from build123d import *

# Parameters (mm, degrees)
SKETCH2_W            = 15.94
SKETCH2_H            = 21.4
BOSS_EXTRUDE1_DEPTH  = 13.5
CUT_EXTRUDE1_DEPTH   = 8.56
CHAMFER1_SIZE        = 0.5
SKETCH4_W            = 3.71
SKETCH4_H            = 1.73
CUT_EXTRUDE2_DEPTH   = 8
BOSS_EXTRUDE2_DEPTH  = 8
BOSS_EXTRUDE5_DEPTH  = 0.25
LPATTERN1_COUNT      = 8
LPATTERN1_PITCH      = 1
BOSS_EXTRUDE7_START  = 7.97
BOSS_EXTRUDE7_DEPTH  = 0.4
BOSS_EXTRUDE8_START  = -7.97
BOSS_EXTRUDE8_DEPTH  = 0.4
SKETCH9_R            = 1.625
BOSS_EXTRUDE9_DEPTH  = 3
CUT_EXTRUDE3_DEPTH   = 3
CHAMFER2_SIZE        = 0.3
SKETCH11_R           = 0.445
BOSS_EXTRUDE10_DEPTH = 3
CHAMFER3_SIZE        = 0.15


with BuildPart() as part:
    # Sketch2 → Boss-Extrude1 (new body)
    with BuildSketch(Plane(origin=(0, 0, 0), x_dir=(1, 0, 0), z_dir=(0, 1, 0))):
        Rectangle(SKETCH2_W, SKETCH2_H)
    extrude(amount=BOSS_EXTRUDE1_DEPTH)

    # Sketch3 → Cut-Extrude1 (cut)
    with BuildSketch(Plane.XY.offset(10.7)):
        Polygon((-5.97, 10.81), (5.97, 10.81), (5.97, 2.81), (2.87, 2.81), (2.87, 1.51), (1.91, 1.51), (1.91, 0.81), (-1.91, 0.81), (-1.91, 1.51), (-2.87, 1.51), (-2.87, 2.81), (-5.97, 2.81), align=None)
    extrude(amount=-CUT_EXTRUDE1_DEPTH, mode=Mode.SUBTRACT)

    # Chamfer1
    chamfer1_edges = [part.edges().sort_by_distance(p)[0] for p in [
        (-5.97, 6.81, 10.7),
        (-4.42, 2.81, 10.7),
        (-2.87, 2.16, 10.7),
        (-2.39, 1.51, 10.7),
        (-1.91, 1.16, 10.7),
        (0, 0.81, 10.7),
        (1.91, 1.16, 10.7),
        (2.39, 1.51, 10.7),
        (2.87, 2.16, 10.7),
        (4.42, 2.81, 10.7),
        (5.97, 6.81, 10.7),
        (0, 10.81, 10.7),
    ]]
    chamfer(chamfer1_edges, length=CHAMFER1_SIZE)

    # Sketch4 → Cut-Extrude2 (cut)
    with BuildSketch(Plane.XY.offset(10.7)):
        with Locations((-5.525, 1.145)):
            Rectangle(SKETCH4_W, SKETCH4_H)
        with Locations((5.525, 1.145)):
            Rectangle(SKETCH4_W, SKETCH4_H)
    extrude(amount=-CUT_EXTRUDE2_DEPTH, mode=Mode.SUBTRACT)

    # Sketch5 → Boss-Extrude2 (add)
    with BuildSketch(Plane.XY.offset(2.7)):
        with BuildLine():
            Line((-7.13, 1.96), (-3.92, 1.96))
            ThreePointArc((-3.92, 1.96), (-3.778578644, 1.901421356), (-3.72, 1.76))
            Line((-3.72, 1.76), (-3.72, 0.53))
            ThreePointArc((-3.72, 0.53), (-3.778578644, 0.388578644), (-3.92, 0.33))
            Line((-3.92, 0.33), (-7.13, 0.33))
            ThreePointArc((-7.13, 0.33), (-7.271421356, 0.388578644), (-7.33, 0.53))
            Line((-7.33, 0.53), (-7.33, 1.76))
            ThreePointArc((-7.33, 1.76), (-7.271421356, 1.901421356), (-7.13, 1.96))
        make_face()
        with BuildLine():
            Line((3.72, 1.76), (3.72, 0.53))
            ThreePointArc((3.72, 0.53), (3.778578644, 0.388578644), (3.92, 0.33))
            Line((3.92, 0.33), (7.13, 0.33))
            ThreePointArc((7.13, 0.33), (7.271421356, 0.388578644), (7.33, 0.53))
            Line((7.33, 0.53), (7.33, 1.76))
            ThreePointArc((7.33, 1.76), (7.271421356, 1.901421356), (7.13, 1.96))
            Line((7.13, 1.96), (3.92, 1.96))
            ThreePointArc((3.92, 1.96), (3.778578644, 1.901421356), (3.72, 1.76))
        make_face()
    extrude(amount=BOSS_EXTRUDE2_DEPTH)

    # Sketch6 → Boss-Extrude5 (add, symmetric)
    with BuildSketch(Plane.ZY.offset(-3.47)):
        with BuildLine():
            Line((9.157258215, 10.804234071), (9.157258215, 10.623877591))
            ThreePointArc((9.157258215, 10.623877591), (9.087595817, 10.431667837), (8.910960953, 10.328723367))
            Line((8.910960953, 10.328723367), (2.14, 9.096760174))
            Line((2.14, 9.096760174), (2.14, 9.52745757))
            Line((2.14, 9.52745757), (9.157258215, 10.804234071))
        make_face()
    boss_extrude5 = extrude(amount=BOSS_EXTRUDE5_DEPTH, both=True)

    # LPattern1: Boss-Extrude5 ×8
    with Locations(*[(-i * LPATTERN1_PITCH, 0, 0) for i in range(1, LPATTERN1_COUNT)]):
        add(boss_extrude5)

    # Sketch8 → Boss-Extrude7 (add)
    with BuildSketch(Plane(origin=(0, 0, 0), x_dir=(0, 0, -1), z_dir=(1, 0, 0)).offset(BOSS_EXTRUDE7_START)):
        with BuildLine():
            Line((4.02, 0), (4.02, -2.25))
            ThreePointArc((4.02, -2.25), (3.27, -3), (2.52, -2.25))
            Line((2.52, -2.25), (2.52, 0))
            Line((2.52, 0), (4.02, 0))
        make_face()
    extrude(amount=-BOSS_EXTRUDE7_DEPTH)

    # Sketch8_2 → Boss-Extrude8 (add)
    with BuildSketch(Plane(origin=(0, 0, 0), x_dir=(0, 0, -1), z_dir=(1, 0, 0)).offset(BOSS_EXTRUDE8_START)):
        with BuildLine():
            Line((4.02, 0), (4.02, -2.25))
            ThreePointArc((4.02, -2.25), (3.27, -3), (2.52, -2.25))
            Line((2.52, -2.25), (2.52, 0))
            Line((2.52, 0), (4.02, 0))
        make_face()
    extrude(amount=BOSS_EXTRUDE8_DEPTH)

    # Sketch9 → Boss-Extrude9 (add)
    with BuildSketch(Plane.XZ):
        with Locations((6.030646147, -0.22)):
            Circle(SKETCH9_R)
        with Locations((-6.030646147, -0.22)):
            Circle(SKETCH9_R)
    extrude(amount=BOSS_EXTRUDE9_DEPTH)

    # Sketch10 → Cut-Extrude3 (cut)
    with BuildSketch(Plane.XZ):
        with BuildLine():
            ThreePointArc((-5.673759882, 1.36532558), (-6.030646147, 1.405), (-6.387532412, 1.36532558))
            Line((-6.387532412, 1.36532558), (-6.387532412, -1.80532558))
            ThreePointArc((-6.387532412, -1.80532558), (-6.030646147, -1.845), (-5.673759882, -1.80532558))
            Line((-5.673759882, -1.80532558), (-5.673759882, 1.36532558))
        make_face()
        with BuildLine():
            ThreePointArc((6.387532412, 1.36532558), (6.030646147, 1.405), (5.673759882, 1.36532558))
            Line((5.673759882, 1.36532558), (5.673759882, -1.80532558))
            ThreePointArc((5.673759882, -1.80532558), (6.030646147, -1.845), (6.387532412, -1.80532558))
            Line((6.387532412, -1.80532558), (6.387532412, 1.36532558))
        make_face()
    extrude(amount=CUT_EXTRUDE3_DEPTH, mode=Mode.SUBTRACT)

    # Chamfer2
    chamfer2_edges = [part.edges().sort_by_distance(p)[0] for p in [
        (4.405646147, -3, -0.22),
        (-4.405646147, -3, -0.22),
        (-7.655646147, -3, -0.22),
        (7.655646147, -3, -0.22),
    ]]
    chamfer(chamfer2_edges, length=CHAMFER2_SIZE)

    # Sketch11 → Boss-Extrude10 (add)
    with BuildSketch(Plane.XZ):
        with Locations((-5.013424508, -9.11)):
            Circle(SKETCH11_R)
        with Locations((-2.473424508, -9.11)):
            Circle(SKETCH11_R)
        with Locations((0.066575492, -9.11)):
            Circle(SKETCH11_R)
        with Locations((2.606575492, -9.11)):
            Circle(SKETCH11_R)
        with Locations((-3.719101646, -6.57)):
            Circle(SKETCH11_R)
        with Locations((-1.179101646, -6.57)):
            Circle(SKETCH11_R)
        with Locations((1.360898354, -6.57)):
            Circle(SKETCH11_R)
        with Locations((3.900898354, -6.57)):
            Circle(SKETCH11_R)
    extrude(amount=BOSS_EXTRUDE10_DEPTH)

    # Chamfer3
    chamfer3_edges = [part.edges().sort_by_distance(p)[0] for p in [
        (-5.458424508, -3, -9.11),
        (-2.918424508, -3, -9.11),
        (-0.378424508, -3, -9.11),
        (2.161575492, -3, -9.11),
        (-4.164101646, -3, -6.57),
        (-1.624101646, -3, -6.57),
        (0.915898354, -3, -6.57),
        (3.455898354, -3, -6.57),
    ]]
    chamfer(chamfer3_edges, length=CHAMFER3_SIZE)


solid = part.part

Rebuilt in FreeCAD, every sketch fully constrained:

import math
import FreeCAD as App
import Part
import Sketcher
from FreeCAD import Vector
Q = App.Units.Quantity


def edges_at(feature, points):
    """Names of the edges that pass closest to the given points."""
    edges = feature.Shape.Edges
    near = lambda p: min(range(len(edges)), key=lambda i: edges[i].distToShape(Part.Vertex(*p))[0])
    return sorted({f"Edge{near(p) + 1}" for p in points})


def add_polygon(sketch, points):
    """Adds a closed chain of lines whose ends are joined by coincident constraints."""
    first, n = sketch.GeometryCount, len(points)
    for a, b in zip(points, points[1:] + points[:1]):
        sketch.addGeometry(Part.LineSegment(App.Vector(*a, 0), App.Vector(*b, 0)), False)
    for i in range(n):
        sketch.addConstraint(Sketcher.Constraint("Coincident", first + i, 2, first + (i + 1) % n, 1))

doc = App.newDocument("Part")
body = doc.addObject("PartDesign::Body", "Body")

# Sketch on XZ plane
sketch1 = doc.addObject("Sketcher::SketchObject", "Sketch")
body.addObject(sketch1)
sketch1.AttachmentSupport = (doc.XZ_Plane, [""])
sketch1.MapMode = "FlatFace"
add_polygon(sketch1, [(-7.97, -10.7), (-7.97, 10.7), (7.97, 10.7), (7.97, -10.7)])  # lines 0-3
sketch1.addConstraint([
    Sketcher.Constraint("Vertical", 0),
    Sketcher.Constraint("Horizontal", 1),
    Sketcher.Constraint("Vertical", 2),
    Sketcher.Constraint("Horizontal", 3),
    Sketcher.Constraint("Symmetric", 0, 2, 2, 2, -1, 1),
    Sketcher.Constraint("DistanceY", 0, 1, 0, 2, Q("21.4 mm")),
    Sketcher.Constraint("DistanceX", 1, 1, 1, 2, Q("15.94 mm")),
])
pad1 = doc.addObject("PartDesign::Pad", "Pad")
body.addObject(pad1)
pad1.Profile = sketch1
pad1.Length = 13.5
pad1.Reversed = True

# Sketch on XY plane
sketch2 = doc.addObject("Sketcher::SketchObject", "Sketch001")
body.addObject(sketch2)
sketch2.AttachmentSupport = (doc.XY_Plane, [""])
sketch2.MapMode = "FlatFace"
sketch2.AttachmentOffset = App.Placement(Vector(0, 0, 10.7), App.Rotation())
add_polygon(sketch2, [(5.97, 10.81), (-5.97, 10.81), (-5.97, 2.81), (-2.87, 2.81), (-2.87, 1.51), (-1.91, 1.51), (-1.91, 0.81), (1.91, 0.81), (1.91, 1.51), (2.87, 1.51), (2.87, 2.81), (5.97, 2.81)])  # lines 0-11
sketch2.addConstraint([
    Sketcher.Constraint("Horizontal", 0),
    Sketcher.Constraint("Vertical", 1),
    Sketcher.Constraint("Horizontal", 2),
    Sketcher.Constraint("Vertical", 3),
    Sketcher.Constraint("Horizontal", 4),
    Sketcher.Constraint("Vertical", 5),
    Sketcher.Constraint("Horizontal", 6),
    Sketcher.Constraint("Vertical", 7),
    Sketcher.Constraint("Horizontal", 8),
    Sketcher.Constraint("Vertical", 9),
    Sketcher.Constraint("Horizontal", 10),
    Sketcher.Constraint("Vertical", 11),
    Sketcher.Constraint("Symmetric", 4, 2, 7, 2, -2),
    Sketcher.Constraint("Symmetric", 2, 2, 9, 2, -2),
    Sketcher.Constraint("Equal", 2, 10),
    Sketcher.Constraint("DistanceY", 1, 2, 1, 1, Q("8 mm")),
    Sketcher.Constraint("DistanceX", 2, 1, 2, 2, Q("3.1 mm")),
    Sketcher.Constraint("DistanceY", 3, 2, 3, 1, Q("1.3 mm")),
    Sketcher.Constraint("DistanceY", 5, 2, 5, 1, Q("0.7 mm")),
    Sketcher.Constraint("DistanceX", 0, 2, 0, 1, Q("11.94 mm")),
    Sketcher.Constraint("DistanceX", 4, 1, 4, 2, Q("0.96 mm")),
    Sketcher.Constraint("DistanceY", -1, 1, 0, 2, Q("10.81 mm")),
])
pocket1 = doc.addObject("PartDesign::Pocket", "Pocket")
body.addObject(pocket1)
pocket1.Profile = sketch2
pocket1.Length = 8.56
doc.recompute()

chamfer = doc.addObject("PartDesign::Chamfer", "Chamfer")
body.addObject(chamfer)
chamfer.Base = (pocket1, edges_at(pocket1, [
    (-5.97, 6.81, 10.7),
    (-4.42, 2.81, 10.7),
    (-2.87, 2.16, 10.7),
    (-2.39, 1.51, 10.7),
    (-1.91, 1.16, 10.7),
    (0, 0.81, 10.7),
    (1.91, 1.16, 10.7),
    (2.39, 1.51, 10.7),
    (2.87, 2.16, 10.7),
    (4.42, 2.81, 10.7),
    (5.97, 6.81, 10.7),
    (0, 10.81, 10.7),
]))
chamfer.Size = 0.5

# Sketch on XY plane
sketch3 = doc.addObject("Sketcher::SketchObject", "Sketch002")
body.addObject(sketch3)
sketch3.AttachmentSupport = (doc.XY_Plane, [""])
sketch3.MapMode = "FlatFace"
sketch3.AttachmentOffset = App.Placement(Vector(0, 0, 10.7), App.Rotation())
add_polygon(sketch3, [(-7.38, 2.01), (-7.38, 0.28), (-3.67, 0.28), (-3.67, 2.01)])  # lines 0-3
add_polygon(sketch3, [(3.67, 2.01), (3.67, 0.28), (7.38, 0.28), (7.38, 2.01)])  # lines 4-7
sketch3.addConstraint([
    Sketcher.Constraint("Vertical", 0),
    Sketcher.Constraint("Horizontal", 1),
    Sketcher.Constraint("Vertical", 2),
    Sketcher.Constraint("Horizontal", 3),
    Sketcher.Constraint("Vertical", 4),
    Sketcher.Constraint("Horizontal", 5),
    Sketcher.Constraint("Vertical", 6),
    Sketcher.Constraint("Horizontal", 7),
    Sketcher.Constraint("Symmetric", 1, 2, 4, 2, -2),
    Sketcher.Constraint("Symmetric", 3, 2, 6, 2, -2),
    Sketcher.Constraint("DistanceX", 1, 1, 1, 2, Q("3.71 mm")),
    Sketcher.Constraint("DistanceY", 0, 2, 0, 1, Q("1.73 mm")),
    Sketcher.Constraint("DistanceX", 0, 2, -1, 1, Q("7.38 mm")),
    Sketcher.Constraint("DistanceY", -1, 1, 0, 2, Q("0.28 mm")),
])
pocket2 = doc.addObject("PartDesign::Pocket", "Pocket001")
body.addObject(pocket2)
pocket2.Profile = sketch3
pocket2.Length = 8

# Sketch on XY plane
sketch4 = doc.addObject("Sketcher::SketchObject", "Sketch003")
body.addObject(sketch4)
sketch4.AttachmentSupport = (doc.XY_Plane, [""])
sketch4.MapMode = "FlatFace"
sketch4.AttachmentOffset = App.Placement(Vector(0, 0, 2.7), App.Rotation())
sketch4.addGeometry([
    Part.LineSegment(Vector(-3.92, 1.96, 0), Vector(-7.13, 1.96, 0)),  # 0
    Part.ArcOfCircle(Part.Circle(Vector(-7.13, 1.76, 0), Vector(0, 0, 1), 0.2), math.radians(90), math.radians(180)),  # 1
    Part.LineSegment(Vector(-7.33, 1.76, 0), Vector(-7.33, 0.53, 0)),  # 2
    Part.ArcOfCircle(Part.Circle(Vector(-7.13, 0.53, 0), Vector(0, 0, 1), 0.2), math.radians(-180), math.radians(-90)),  # 3
    Part.LineSegment(Vector(-7.13, 0.33, 0), Vector(-3.92, 0.33, 0)),  # 4
    Part.ArcOfCircle(Part.Circle(Vector(-3.92, 0.53, 0), Vector(0, 0, 1), 0.2), math.radians(-90), math.radians(0)),  # 5
    Part.LineSegment(Vector(-3.72, 0.53, 0), Vector(-3.72, 1.76, 0)),  # 6
    Part.ArcOfCircle(Part.Circle(Vector(-3.92, 1.76, 0), Vector(0, 0, 1), 0.2), math.radians(0), math.radians(90)),  # 7
    Part.LineSegment(Vector(3.72, 1.76, 0), Vector(3.72, 0.53, 0)),  # 8
    Part.ArcOfCircle(Part.Circle(Vector(3.92, 0.53, 0), Vector(0, 0, 1), 0.2), math.radians(-180), math.radians(-90)),  # 9
    Part.LineSegment(Vector(3.92, 0.33, 0), Vector(7.13, 0.33, 0)),  # 10
    Part.ArcOfCircle(Part.Circle(Vector(7.13, 0.53, 0), Vector(0, 0, 1), 0.2), math.radians(-90), math.radians(0)),  # 11
    Part.LineSegment(Vector(7.33, 0.53, 0), Vector(7.33, 1.76, 0)),  # 12
    Part.ArcOfCircle(Part.Circle(Vector(7.13, 1.76, 0), Vector(0, 0, 1), 0.2), math.radians(0), math.radians(90)),  # 13
    Part.LineSegment(Vector(7.13, 1.96, 0), Vector(3.92, 1.96, 0)),  # 14
    Part.ArcOfCircle(Part.Circle(Vector(3.92, 1.76, 0), Vector(0, 0, 1), 0.2), math.radians(90), math.radians(180)),  # 15
], False)
sketch4.addConstraint([
    Sketcher.Constraint("Tangent", 0, 2, 1, 1),
    Sketcher.Constraint("Tangent", 1, 2, 2, 1),
    Sketcher.Constraint("Tangent", 2, 2, 3, 1),
    Sketcher.Constraint("Tangent", 3, 2, 4, 1),
    Sketcher.Constraint("Tangent", 4, 2, 5, 1),
    Sketcher.Constraint("Tangent", 5, 2, 6, 1),
    Sketcher.Constraint("Tangent", 6, 2, 7, 1),
    Sketcher.Constraint("Tangent", 7, 2, 0, 1),
    Sketcher.Constraint("Tangent", 8, 2, 9, 1),
    Sketcher.Constraint("Tangent", 9, 2, 10, 1),
    Sketcher.Constraint("Tangent", 10, 2, 11, 1),
    Sketcher.Constraint("Tangent", 11, 2, 12, 1),
    Sketcher.Constraint("Tangent", 12, 2, 13, 1),
    Sketcher.Constraint("Tangent", 13, 2, 14, 1),
    Sketcher.Constraint("Tangent", 14, 2, 15, 1),
    Sketcher.Constraint("Tangent", 15, 2, 8, 1),
    Sketcher.Constraint("Horizontal", 0),
    Sketcher.Constraint("Vertical", 2),
    Sketcher.Constraint("Horizontal", 4),
    Sketcher.Constraint("Vertical", 6),
    Sketcher.Constraint("Vertical", 8),
    Sketcher.Constraint("Horizontal", 10),
    Sketcher.Constraint("Vertical", 12),
    Sketcher.Constraint("Horizontal", 14),
    Sketcher.Constraint("Equal", 1, 3),
    Sketcher.Constraint("Equal", 3, 5),
    Sketcher.Constraint("Equal", 5, 7),
    Sketcher.Constraint("Equal", 7, 9),
    Sketcher.Constraint("Equal", 9, 11),
    Sketcher.Constraint("Equal", 11, 13),
    Sketcher.Constraint("Equal", 13, 15),
    Sketcher.Constraint("Symmetric", 5, 3, 9, 3, -2),
    Sketcher.Constraint("Symmetric", 1, 3, 13, 3, -2),
    Sketcher.Constraint("Radius", 1, Q("0.2 mm")),
    Sketcher.Constraint("DistanceX", 0, 2, 0, 1, Q("3.21 mm")),
    Sketcher.Constraint("DistanceY", 2, 2, 2, 1, Q("1.23 mm")),
    Sketcher.Constraint("DistanceX", 1, 3, -1, 1, Q("7.13 mm")),
    Sketcher.Constraint("DistanceY", -1, 1, 1, 3, Q("1.76 mm")),
])
pad2 = doc.addObject("PartDesign::Pad", "Pad001")
body.addObject(pad2)
pad2.Profile = sketch4
pad2.Length = 8

# Sketch on YZ plane
sketch5 = doc.addObject("Sketcher::SketchObject", "Sketch004")
body.addObject(sketch5)
sketch5.AttachmentSupport = (doc.YZ_Plane, [""])
sketch5.MapMode = "FlatFace"
sketch5.AttachmentOffset = App.Placement(Vector(0, 0, 3.47), App.Rotation())
sketch5.addGeometry([
    Part.LineSegment(Vector(10.623878, 9.157258, 0), Vector(10.804234, 9.157258, 0)),  # 0
    Part.LineSegment(Vector(10.804234, 9.157258, 0), Vector(9.527458, 2.14, 0)),  # 1
    Part.LineSegment(Vector(9.527458, 2.14, 0), Vector(9.09676, 2.14, 0)),  # 2
    Part.LineSegment(Vector(9.09676, 2.14, 0), Vector(10.328723, 8.910961, 0)),  # 3
    Part.ArcOfCircle(Part.Circle(Vector(10.623878, 8.857258, 0), Vector(0, 0, 1), 0.3), math.radians(90), math.radians(169.687951)),  # 4
], False)
sketch5.addConstraint([
    Sketcher.Constraint("Coincident", 0, 2, 1, 1),
    Sketcher.Constraint("Coincident", 1, 2, 2, 1),
    Sketcher.Constraint("Coincident", 2, 2, 3, 1),
    Sketcher.Constraint("Tangent", 3, 2, 4, 2),
    Sketcher.Constraint("Tangent", 4, 1, 0, 1),
    Sketcher.Constraint("Horizontal", 0),
    Sketcher.Constraint("Horizontal", 2),
    Sketcher.Constraint("Parallel", 1, 3),
    Sketcher.Constraint("Radius", 4, Q("0.3 mm")),
    Sketcher.Constraint("DistanceY", -1, 1, 1, 2, Q("2.14 mm")),
    Sketcher.Constraint("DistanceX", 0, 1, 0, 2, Q("0.180356 mm")),
    Sketcher.Constraint("DistanceX", 2, 2, 2, 1, Q("0.430697 mm")),
    Sketcher.Constraint("DistanceY", -1, 1, 4, 3, Q("8.857258 mm")),
    Sketcher.Constraint("DistanceX", -1, 1, 2, 2, Q("9.09676 mm")),
])
pad3 = doc.addObject("PartDesign::Pad", "Pad002")
body.addObject(pad3)
pad3.Profile = sketch5
pad3.Length = 0.5
pad3.Midplane = True
doc.recompute()

linearpattern = doc.addObject("PartDesign::LinearPattern", "LinearPattern")
body.addObject(linearpattern)
linearpattern.Originals = [pad3]
linearpattern.Direction = (doc.X_Axis, [""])
linearpattern.Mode = "offset"
linearpattern.Offset = 1
linearpattern.Occurrences = 8
linearpattern.Reversed = True
body.Tip = linearpattern

# Sketch on YZ plane
sketch6 = doc.addObject("Sketcher::SketchObject", "Sketch005")
body.addObject(sketch6)
sketch6.AttachmentSupport = (doc.YZ_Plane, [""])
sketch6.MapMode = "FlatFace"
sketch6.AttachmentOffset = App.Placement(Vector(0, 0, 7.97), App.Rotation())
sketch6.addGeometry([
    Part.LineSegment(Vector(-2.25, -4.02, 0), Vector(0, -4.02, 0)),
    Part.LineSegment(Vector(0, -4.02, 0), Vector(0, -2.52, 0)),
    Part.LineSegment(Vector(0, -2.52, 0), Vector(-2.25, -2.52, 0)),
    Part.ArcOfCircle(Part.Circle(Vector(-2.25, -3.27, 0), Vector(0, 0, 1), 0.75), math.radians(90), math.radians(270)),
], False)
sketch6.addConstraint([
    Sketcher.Constraint("Coincident", 0, 2, 1, 1),
    Sketcher.Constraint("Coincident", 1, 2, 2, 1),
    Sketcher.Constraint("Tangent", 2, 2, 3, 1),
    Sketcher.Constraint("Tangent", 3, 2, 0, 1),
    Sketcher.Constraint("Horizontal", 0),
    Sketcher.Constraint("Vertical", 1),
    Sketcher.Constraint("Horizontal", 2),
    Sketcher.Constraint("PointOnObject", 0, 2, -2),
    Sketcher.Constraint("Radius", 3, Q("0.75 mm")),
    Sketcher.Constraint("DistanceX", 0, 1, 0, 2, Q("2.25 mm")),
    Sketcher.Constraint("DistanceY", 3, 3, -1, 1, Q("3.27 mm")),
])
pad4 = doc.addObject("PartDesign::Pad", "Pad003")
body.addObject(pad4)
pad4.Profile = sketch6
pad4.Length = 0.4
pad4.Reversed = True

# Sketch on YZ plane
sketch7 = doc.addObject("Sketcher::SketchObject", "Sketch006")
body.addObject(sketch7)
sketch7.AttachmentSupport = (doc.YZ_Plane, [""])
sketch7.MapMode = "FlatFace"
sketch7.AttachmentOffset = App.Placement(Vector(0, 0, -7.97), App.Rotation())
sketch7.addGeometry([
    Part.LineSegment(Vector(-2.25, -4.02, 0), Vector(0, -4.02, 0)),
    Part.LineSegment(Vector(0, -4.02, 0), Vector(0, -2.52, 0)),
    Part.LineSegment(Vector(0, -2.52, 0), Vector(-2.25, -2.52, 0)),
    Part.ArcOfCircle(Part.Circle(Vector(-2.25, -3.27, 0), Vector(0, 0, 1), 0.75), math.radians(90), math.radians(270)),
], False)
sketch7.addConstraint([
    Sketcher.Constraint("Coincident", 0, 2, 1, 1),
    Sketcher.Constraint("Coincident", 1, 2, 2, 1),
    Sketcher.Constraint("Tangent", 2, 2, 3, 1),
    Sketcher.Constraint("Tangent", 3, 2, 0, 1),
    Sketcher.Constraint("Horizontal", 0),
    Sketcher.Constraint("Vertical", 1),
    Sketcher.Constraint("Horizontal", 2),
    Sketcher.Constraint("PointOnObject", 0, 2, -2),
    Sketcher.Constraint("Radius", 3, Q("0.75 mm")),
    Sketcher.Constraint("DistanceX", 0, 1, 0, 2, Q("2.25 mm")),
    Sketcher.Constraint("DistanceY", 3, 3, -1, 1, Q("3.27 mm")),
])
pad5 = doc.addObject("PartDesign::Pad", "Pad004")
body.addObject(pad5)
pad5.Profile = sketch7
pad5.Length = 0.4

# Sketch on XZ plane
sketch8 = doc.addObject("Sketcher::SketchObject", "Sketch007")
body.addObject(sketch8)
sketch8.AttachmentSupport = (doc.XZ_Plane, [""])
sketch8.MapMode = "FlatFace"
sketch8.addGeometry([
    Part.Circle(Vector(6.030646, -0.22, 0), Vector(0, 0, 1), 1.625),
    Part.Circle(Vector(-6.030646, -0.22, 0), Vector(0, 0, 1), 1.625),
], False)
sketch8.addConstraint([
    Sketcher.Constraint("Equal", 0, 1),
    Sketcher.Constraint("Symmetric", 0, 3, 1, 3, -2),
    Sketcher.Constraint("Diameter", 0, Q("3.25 mm")),
    Sketcher.Constraint("DistanceY", 0, 3, -1, 1, Q("0.22 mm")),
    Sketcher.Constraint("DistanceX", -1, 1, 0, 3, Q("6.030646 mm")),
])
pad6 = doc.addObject("PartDesign::Pad", "Pad005")
body.addObject(pad6)
pad6.Profile = sketch8
pad6.Length = 3

# Sketch on XZ plane
sketch9 = doc.addObject("Sketcher::SketchObject", "Sketch008")
body.addObject(sketch9)
sketch9.AttachmentSupport = (doc.XZ_Plane, [""])
sketch9.MapMode = "FlatFace"
sketch9.addGeometry([
    Part.ArcOfCircle(Part.Circle(Vector(-6.030646, -0.22, 0), Vector(0, 0, 1), 1.625), math.radians(77.313149), math.radians(102.686851)),  # 0
    Part.LineSegment(Vector(-6.387532, 1.365326, 0), Vector(-6.387532, -1.805326, 0)),  # 1
    Part.ArcOfCircle(Part.Circle(Vector(-6.030646, -0.22, 0), Vector(0, 0, 1), 1.625), math.radians(-102.686851), math.radians(-77.313149)),  # 2
    Part.LineSegment(Vector(-5.67376, -1.805326, 0), Vector(-5.67376, 1.365326, 0)),  # 3
    Part.ArcOfCircle(Part.Circle(Vector(6.030646, -0.22, 0), Vector(0, 0, 1), 1.625), math.radians(77.313149), math.radians(102.686851)),  # 4
    Part.LineSegment(Vector(5.67376, 1.365326, 0), Vector(5.67376, -1.805326, 0)),  # 5
    Part.ArcOfCircle(Part.Circle(Vector(6.030646, -0.22, 0), Vector(0, 0, 1), 1.625), math.radians(-102.686851), math.radians(-77.313149)),  # 6
    Part.LineSegment(Vector(6.387532, -1.805326, 0), Vector(6.387532, 1.365326, 0)),  # 7
], False)
sketch9.addConstraint([
    Sketcher.Constraint("Coincident", 0, 2, 1, 1),
    Sketcher.Constraint("Coincident", 1, 2, 2, 1),
    Sketcher.Constraint("Coincident", 2, 2, 3, 1),
    Sketcher.Constraint("Coincident", 3, 2, 0, 1),
    Sketcher.Constraint("Coincident", 4, 2, 5, 1),
    Sketcher.Constraint("Coincident", 5, 2, 6, 1),
    Sketcher.Constraint("Coincident", 6, 2, 7, 1),
    Sketcher.Constraint("Coincident", 7, 2, 4, 1),
    Sketcher.Constraint("Vertical", 1),
    Sketcher.Constraint("Vertical", 3),
    Sketcher.Constraint("Vertical", 5),
    Sketcher.Constraint("Vertical", 7),
    Sketcher.Constraint("Coincident", 2, 3, 0, 3),
    Sketcher.Constraint("Coincident", 6, 3, 4, 3),
    Sketcher.Constraint("Equal", 0, 2),
    Sketcher.Constraint("Equal", 2, 4),
    Sketcher.Constraint("Equal", 4, 6),
    Sketcher.Constraint("Symmetric", 0, 3, 4, 3, -2),
    Sketcher.Constraint("Horizontal", 1, 2, 2, 2),
    Sketcher.Constraint("Horizontal", 3, 2, 4, 2),
    Sketcher.Constraint("Horizontal", 5, 2, 6, 2),
    Sketcher.Constraint("Radius", 0, Q("1.625 mm")),
    Sketcher.Constraint("DistanceY", 0, 3, -1, 1, Q("0.22 mm")),
    Sketcher.Constraint("DistanceY", 1, 2, 1, 1, Q("3.170651 mm")),
    Sketcher.Constraint("DistanceX", 2, 2, -1, 1, Q("5.67376 mm")),
])
pocket3 = doc.addObject("PartDesign::Pocket", "Pocket002")
body.addObject(pocket3)
pocket3.Profile = sketch9
pocket3.Length = 3
pocket3.Reversed = True
doc.recompute()

chamfer2 = doc.addObject("PartDesign::Chamfer", "Chamfer001")
body.addObject(chamfer2)
chamfer2.Base = (pocket3, edges_at(pocket3, [
    (4.406, -3, -0.22),
    (-4.406, -3, -0.22),
    (-7.656, -3, -0.22),
    (7.656, -3, -0.22),
]))
chamfer2.Size = 0.3

# Sketch on XZ plane
sketch10 = doc.addObject("Sketcher::SketchObject", "Sketch009")
body.addObject(sketch10)
sketch10.AttachmentSupport = (doc.XZ_Plane, [""])
sketch10.MapMode = "FlatFace"
sketch10.addGeometry([
    Part.Circle(Vector(-5.013425, -9.11, 0), Vector(0, 0, 1), 0.445),  # 0
    Part.Circle(Vector(-2.473425, -9.11, 0), Vector(0, 0, 1), 0.445),  # 1
    Part.Circle(Vector(0.066575, -9.11, 0), Vector(0, 0, 1), 0.445),  # 2
    Part.Circle(Vector(2.606575, -9.11, 0), Vector(0, 0, 1), 0.445),  # 3
    Part.Circle(Vector(-3.719102, -6.57, 0), Vector(0, 0, 1), 0.445),  # 4
    Part.Circle(Vector(-1.179102, -6.57, 0), Vector(0, 0, 1), 0.445),  # 5
    Part.Circle(Vector(1.360898, -6.57, 0), Vector(0, 0, 1), 0.445),  # 6
    Part.Circle(Vector(3.900898, -6.57, 0), Vector(0, 0, 1), 0.445),  # 7
], False)
sketch10.addConstraint([
    Sketcher.Constraint("Equal", 0, 1),
    Sketcher.Constraint("Equal", 1, 2),
    Sketcher.Constraint("Equal", 2, 3),
    Sketcher.Constraint("Equal", 3, 4),
    Sketcher.Constraint("Equal", 4, 5),
    Sketcher.Constraint("Equal", 5, 6),
    Sketcher.Constraint("Equal", 6, 7),
    Sketcher.Constraint("Horizontal", 0, 3, 1, 3),
    Sketcher.Constraint("Horizontal", 1, 3, 2, 3),
    Sketcher.Constraint("Horizontal", 2, 3, 3, 3),
    Sketcher.Constraint("Horizontal", 4, 3, 5, 3),
    Sketcher.Constraint("Horizontal", 5, 3, 6, 3),
    Sketcher.Constraint("Horizontal", 6, 3, 7, 3),
    Sketcher.Constraint("Diameter", 0, Q("0.89 mm")),
    Sketcher.Constraint("DistanceY", 0, 3, -1, 1, Q("9.11 mm")),
    Sketcher.Constraint("DistanceY", 4, 3, -1, 1, Q("6.57 mm")),
    Sketcher.Constraint("DistanceX", 0, 3, 1, 3, Q("2.54 mm")),
    Sketcher.Constraint("DistanceX", 1, 3, 2, 3, Q("2.54 mm")),
    Sketcher.Constraint("DistanceX", 2, 3, 3, 3, Q("2.54 mm")),
    Sketcher.Constraint("DistanceX", 4, 3, 5, 3, Q("2.54 mm")),
    Sketcher.Constraint("DistanceX", 5, 3, 6, 3, Q("2.54 mm")),
    Sketcher.Constraint("DistanceX", 6, 3, 7, 3, Q("2.54 mm")),
    Sketcher.Constraint("DistanceX", 4, 3, -1, 1, Q("3.719102 mm")),
    Sketcher.Constraint("DistanceX", 0, 3, -1, 1, Q("5.013425 mm")),
])
pad7 = doc.addObject("PartDesign::Pad", "Pad006")
body.addObject(pad7)
pad7.Profile = sketch10
pad7.Length = 3
doc.recompute()

chamfer3 = doc.addObject("PartDesign::Chamfer", "Chamfer002")
body.addObject(chamfer3)
chamfer3.Base = (pad7, edges_at(pad7, [
    (-5.458, -3, -9.11),
    (-2.918, -3, -9.11),
    (-0.378, -3, -9.11),
    (2.162, -3, -9.11),
    (-4.164, -3, -6.57),
    (-1.624, -3, -6.57),
    (0.916, -3, -6.57),
    (3.456, -3, -6.57),
]))
chamfer3.Size = 0.15

doc.recompute()
